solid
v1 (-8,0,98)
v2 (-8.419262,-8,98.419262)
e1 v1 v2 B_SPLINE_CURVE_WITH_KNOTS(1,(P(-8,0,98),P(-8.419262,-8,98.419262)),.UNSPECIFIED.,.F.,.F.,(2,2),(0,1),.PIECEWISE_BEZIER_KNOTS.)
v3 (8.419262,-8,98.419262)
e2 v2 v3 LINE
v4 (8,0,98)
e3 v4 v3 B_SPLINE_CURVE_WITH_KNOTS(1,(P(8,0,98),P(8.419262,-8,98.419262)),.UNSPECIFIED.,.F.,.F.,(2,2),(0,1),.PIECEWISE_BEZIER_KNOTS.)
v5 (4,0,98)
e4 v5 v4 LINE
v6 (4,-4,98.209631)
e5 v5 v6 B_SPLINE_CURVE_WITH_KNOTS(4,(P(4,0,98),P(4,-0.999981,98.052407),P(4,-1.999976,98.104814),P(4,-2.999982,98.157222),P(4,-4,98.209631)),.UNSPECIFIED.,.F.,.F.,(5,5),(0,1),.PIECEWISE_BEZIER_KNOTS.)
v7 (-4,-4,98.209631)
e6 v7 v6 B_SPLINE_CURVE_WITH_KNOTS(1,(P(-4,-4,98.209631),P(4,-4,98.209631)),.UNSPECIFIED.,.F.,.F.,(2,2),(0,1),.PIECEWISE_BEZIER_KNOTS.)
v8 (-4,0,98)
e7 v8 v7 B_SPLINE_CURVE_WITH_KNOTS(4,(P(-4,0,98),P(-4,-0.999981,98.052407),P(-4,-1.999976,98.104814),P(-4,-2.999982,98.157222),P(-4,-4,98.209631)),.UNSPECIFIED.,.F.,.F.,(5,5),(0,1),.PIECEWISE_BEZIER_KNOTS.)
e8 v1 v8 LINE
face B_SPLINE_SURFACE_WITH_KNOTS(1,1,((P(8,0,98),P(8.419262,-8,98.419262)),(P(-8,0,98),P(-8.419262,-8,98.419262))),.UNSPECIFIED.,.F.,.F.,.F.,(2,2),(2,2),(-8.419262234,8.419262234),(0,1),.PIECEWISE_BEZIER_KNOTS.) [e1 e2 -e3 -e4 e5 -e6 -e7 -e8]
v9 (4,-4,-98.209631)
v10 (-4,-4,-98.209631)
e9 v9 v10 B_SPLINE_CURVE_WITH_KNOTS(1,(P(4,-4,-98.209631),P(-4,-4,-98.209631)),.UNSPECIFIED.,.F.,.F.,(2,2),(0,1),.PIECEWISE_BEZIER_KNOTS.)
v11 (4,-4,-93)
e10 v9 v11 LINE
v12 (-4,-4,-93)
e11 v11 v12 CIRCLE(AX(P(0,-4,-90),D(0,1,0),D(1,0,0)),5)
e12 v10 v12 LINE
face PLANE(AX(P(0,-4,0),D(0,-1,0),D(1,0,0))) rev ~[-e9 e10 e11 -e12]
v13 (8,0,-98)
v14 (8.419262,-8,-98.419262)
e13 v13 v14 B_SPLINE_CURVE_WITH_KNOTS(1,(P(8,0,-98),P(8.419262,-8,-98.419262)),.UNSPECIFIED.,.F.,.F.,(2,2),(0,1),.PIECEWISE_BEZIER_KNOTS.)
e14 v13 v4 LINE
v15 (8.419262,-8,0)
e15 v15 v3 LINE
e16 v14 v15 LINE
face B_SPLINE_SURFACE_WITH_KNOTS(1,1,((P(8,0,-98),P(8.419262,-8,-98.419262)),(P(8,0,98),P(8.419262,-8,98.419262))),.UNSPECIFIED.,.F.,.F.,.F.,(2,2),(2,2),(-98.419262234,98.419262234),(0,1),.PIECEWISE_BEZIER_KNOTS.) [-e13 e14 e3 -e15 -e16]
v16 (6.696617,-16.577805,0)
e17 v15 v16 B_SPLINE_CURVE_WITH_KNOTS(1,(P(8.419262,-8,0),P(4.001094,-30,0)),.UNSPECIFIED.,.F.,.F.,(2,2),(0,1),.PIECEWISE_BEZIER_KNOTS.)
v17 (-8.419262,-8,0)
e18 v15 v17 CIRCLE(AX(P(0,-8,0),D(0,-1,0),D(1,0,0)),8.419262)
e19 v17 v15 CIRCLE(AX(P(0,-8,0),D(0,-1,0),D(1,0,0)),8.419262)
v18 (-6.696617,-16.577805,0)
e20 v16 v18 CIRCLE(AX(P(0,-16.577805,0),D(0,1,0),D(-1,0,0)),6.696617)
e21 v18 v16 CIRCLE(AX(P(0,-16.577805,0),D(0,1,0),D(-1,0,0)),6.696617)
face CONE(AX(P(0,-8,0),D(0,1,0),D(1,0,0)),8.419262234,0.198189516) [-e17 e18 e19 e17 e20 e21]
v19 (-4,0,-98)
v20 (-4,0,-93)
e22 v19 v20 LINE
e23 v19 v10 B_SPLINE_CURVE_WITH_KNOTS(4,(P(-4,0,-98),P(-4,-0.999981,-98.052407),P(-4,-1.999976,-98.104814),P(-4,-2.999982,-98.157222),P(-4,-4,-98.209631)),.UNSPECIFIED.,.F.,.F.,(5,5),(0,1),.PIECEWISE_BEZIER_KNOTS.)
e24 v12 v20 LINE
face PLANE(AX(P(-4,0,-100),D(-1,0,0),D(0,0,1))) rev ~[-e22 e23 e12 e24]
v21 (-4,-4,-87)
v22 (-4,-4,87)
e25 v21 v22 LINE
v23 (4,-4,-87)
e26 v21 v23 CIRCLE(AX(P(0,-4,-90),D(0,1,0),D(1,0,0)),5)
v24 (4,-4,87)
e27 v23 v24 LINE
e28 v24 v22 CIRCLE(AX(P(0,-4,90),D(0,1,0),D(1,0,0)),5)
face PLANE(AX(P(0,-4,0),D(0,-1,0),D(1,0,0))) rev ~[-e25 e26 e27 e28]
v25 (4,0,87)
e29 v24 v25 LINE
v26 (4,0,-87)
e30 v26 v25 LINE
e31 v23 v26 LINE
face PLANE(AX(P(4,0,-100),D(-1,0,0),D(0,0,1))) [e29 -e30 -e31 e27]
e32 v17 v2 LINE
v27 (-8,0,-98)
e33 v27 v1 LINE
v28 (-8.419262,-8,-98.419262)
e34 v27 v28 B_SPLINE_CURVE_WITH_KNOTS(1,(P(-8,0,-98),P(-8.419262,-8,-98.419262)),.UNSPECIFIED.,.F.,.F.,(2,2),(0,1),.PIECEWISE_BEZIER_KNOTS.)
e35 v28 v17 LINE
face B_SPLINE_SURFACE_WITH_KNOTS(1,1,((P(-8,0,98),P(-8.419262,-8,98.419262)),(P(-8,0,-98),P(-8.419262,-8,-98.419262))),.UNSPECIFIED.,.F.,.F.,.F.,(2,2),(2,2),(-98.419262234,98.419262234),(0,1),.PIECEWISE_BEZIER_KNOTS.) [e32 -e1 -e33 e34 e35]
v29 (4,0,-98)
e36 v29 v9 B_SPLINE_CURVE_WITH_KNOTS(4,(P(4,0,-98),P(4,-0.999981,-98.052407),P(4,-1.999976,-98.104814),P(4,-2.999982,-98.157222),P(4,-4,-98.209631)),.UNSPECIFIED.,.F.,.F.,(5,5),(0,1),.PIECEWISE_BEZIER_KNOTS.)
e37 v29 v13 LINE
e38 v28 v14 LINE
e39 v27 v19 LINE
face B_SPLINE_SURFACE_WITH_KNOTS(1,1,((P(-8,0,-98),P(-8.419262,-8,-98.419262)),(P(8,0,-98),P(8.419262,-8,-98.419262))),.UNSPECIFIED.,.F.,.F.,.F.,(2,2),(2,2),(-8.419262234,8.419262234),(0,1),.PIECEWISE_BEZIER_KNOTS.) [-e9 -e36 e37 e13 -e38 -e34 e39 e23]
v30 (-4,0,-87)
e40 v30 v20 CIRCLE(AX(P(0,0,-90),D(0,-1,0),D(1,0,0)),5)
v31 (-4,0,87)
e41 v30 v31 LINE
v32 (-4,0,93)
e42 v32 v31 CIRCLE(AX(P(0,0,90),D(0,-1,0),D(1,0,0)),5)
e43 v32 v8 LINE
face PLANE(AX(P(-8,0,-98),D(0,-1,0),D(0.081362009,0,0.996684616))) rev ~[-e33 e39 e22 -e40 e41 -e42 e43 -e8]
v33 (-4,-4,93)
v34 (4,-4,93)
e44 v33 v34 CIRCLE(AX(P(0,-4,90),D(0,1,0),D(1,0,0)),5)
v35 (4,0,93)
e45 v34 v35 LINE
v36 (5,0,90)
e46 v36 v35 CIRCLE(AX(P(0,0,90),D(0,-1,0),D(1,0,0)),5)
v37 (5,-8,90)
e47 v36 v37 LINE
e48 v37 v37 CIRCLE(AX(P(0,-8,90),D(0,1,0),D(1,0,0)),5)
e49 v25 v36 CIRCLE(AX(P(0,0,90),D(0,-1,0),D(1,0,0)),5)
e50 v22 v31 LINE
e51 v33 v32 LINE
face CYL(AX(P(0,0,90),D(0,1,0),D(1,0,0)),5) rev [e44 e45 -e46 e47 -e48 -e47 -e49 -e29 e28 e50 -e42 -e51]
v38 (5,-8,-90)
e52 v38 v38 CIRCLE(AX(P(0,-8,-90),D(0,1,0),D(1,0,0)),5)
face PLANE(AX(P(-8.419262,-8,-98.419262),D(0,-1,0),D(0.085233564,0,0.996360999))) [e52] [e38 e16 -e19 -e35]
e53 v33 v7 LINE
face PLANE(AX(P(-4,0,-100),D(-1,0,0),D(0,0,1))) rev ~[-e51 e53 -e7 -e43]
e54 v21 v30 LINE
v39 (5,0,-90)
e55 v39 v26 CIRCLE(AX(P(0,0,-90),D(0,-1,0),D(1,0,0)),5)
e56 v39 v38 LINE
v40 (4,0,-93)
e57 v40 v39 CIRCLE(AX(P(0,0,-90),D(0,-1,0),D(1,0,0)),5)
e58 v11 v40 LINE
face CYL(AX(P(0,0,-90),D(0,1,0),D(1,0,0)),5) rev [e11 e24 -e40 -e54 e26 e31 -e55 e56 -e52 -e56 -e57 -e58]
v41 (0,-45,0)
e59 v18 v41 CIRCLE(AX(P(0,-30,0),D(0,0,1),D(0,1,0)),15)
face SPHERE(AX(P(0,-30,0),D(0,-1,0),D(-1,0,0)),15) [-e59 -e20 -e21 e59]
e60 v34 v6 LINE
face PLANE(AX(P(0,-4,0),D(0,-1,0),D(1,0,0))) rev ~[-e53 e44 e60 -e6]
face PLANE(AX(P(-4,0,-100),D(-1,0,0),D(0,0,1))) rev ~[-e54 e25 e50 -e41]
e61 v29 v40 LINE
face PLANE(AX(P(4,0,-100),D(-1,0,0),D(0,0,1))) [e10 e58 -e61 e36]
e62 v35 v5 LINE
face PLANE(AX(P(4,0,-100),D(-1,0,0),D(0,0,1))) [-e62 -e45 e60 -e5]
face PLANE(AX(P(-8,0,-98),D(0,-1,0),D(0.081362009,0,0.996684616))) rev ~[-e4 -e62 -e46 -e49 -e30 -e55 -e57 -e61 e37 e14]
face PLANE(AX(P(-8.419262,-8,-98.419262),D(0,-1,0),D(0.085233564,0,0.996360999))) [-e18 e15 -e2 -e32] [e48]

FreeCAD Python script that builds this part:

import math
import FreeCAD as App
import Part
import Sketcher

V = App.Vector
Q = App.Units.Quantity


def add_polygon(sketch, points):
    """Adds a closed chain of lines whose ends are joined by coincident constraints."""
    first, n = sketch.GeometryCount, len(points)
    for a, b in zip(points, points[1:] + points[:1]):
        sketch.addGeometry(Part.LineSegment(App.Vector(*a, 0), App.Vector(*b, 0)), False)
    for i in range(n):
        sketch.addConstraint(Sketcher.Constraint("Coincident", first + i, 2, first + (i + 1) % n, 1))

doc = App.newDocument("Part")
body = doc.addObject("PartDesign::Body", "Body")

sketch1 = body.newObject("Sketcher::SketchObject", "Sketch")
sketch1.AttachmentSupport = (doc.getObject("XZ_Plane"), [""])
sketch1.MapMode = "FlatFace"
add_polygon(sketch1, [(-8, 98), (-8, -98), (8, -98), (8, 98)])
sketch1.addConstraint([
    Sketcher.Constraint("Vertical", 0),
    Sketcher.Constraint("Horizontal", 1),
    Sketcher.Constraint("Vertical", 2),
    Sketcher.Constraint("Horizontal", 3),
    Sketcher.Constraint("Symmetric", 0, 2, 2, 2, -1, 1),
    Sketcher.Constraint("DistanceX", 1, 1, 1, 2, Q("16 mm")),
    Sketcher.Constraint("DistanceY", 0, 2, 0, 1, Q("196 mm")),
])
pad1 = body.newObject("PartDesign::Pad", "Pad")
pad1.Profile = sketch1
pad1.Length = 8
pad1.TaperAngle = 3

sketch2 = body.newObject("Sketcher::SketchObject", "Sketch001")
sketch2.AttachmentSupport = (doc.getObject("XZ_Plane"), [""])
sketch2.MapMode = "FlatFace"
add_polygon(sketch2, [(-4, 100), (-4, -100), (4, -100), (4, 100)])
sketch2.addConstraint([
    Sketcher.Constraint("Vertical", 0),
    Sketcher.Constraint("Horizontal", 1),
    Sketcher.Constraint("Vertical", 2),
    Sketcher.Constraint("Horizontal", 3),
    Sketcher.Constraint("Symmetric", 0, 2, 2, 2, -1, 1),
    Sketcher.Constraint("DistanceX", 1, 1, 1, 2, Q("8 mm")),
    Sketcher.Constraint("DistanceY", 0, 2, 0, 1, Q("200 mm")),
])
pocket1 = body.newObject("PartDesign::Pocket", "Pocket")
pocket1.Profile = sketch2
pocket1.Length = 4
pocket1.Reversed = True

sketch3 = body.newObject("Sketcher::SketchObject", "Sketch002")
sketch3.AttachmentSupport = (doc.getObject("XZ_Plane"), [""])
sketch3.MapMode = "FlatFace"
sketch3.addGeometry([
    Part.Circle(V(0, 90, 0), V(0, 0, 1), 5),
    Part.Circle(V(0, -90, 0), V(0, 0, 1), 5),
], False)
sketch3.addConstraint([
    Sketcher.Constraint("Equal", 0, 1),
    Sketcher.Constraint("Symmetric", 0, 3, 1, 3, -1, 1),
    Sketcher.Constraint("PointOnObject", 0, 3, -2),
    Sketcher.Constraint("Diameter", 0, Q("10 mm")),
    Sketcher.Constraint("DistanceY", -1, 1, 0, 3, Q("90 mm")),
])
pocket2 = body.newObject("PartDesign::Pocket", "Pocket001")
pocket2.Profile = sketch3
pocket2.Length = 25.4
pocket2.Reversed = True

sketch4 = body.newObject("Sketcher::SketchObject", "Sketch003")
sketch4.AttachmentSupport = (doc.getObject("XZ_Plane"), [""])
sketch4.MapMode = "FlatFace"
sketch4.AttachmentOffset = App.Placement(V(0, 0, 8), App.Rotation())
sketch4.addGeometry(Part.Circle(V(0, 0, 0), V(0, 0, 1), 8), False)
sketch4.addConstraint([
    Sketcher.Constraint("Coincident", 0, 3, -1, 1),
    Sketcher.Constraint("Diameter", 0, Q("16.838524 mm")),
])

sketch5 = body.newObject("Sketcher::SketchObject", "Sketch004")
sketch5.AttachmentSupport = (doc.getObject("XZ_Plane"), [""])
sketch5.MapMode = "FlatFace"
sketch5.AttachmentOffset = App.Placement(V(0, 0, 30), App.Rotation())
sketch5.addGeometry(Part.Circle(V(0, 0, 0), V(0, 0, 1), 4), False)
sketch5.addConstraint([
    Sketcher.Constraint("Coincident", 0, 3, -1, 1),
    Sketcher.Constraint("Diameter", 0, Q("8.002187 mm")),
])

additiveloft = body.newObject("PartDesign::AdditiveLoft", "AdditiveLoft")
additiveloft.Profile = sketch4
additiveloft.Sections = [sketch5]

sketch6 = body.newObject("Sketcher::SketchObject", "Sketch005")
sketch6.AttachmentSupport = (doc.getObject("XY_Plane"), [""])
sketch6.MapMode = "FlatFace"
sketch6.addGeometry([
    Part.LineSegment(V(0, -45, 0), V(0, -15, 0)),
    Part.ArcOfCircle(Part.Circle(V(0, -30, 0), V(0, 0, 1), 15), math.radians(90), math.radians(270)),
], False)
sketch6.addConstraint([
    Sketcher.Constraint("Coincident", 0, 1, 1, 2),
    Sketcher.Constraint("Coincident", 1, 1, 0, 2),
    Sketcher.Constraint("Vertical", 0),
    Sketcher.Constraint("PointOnObject", 1, 3, -2),
    Sketcher.Constraint("PointOnObject", 0, 1, -2),
    Sketcher.Constraint("Radius", 1, Q("15 mm")),
    Sketcher.Constraint("DistanceY", 1, 3, -1, 1, Q("30 mm")),
])
revolution = body.newObject("PartDesign::Revolution", "Revolution")
revolution.Profile = sketch6
revolution.ReferenceAxis = (sketch6, ["V_Axis"])
revolution.Angle = 360

sketch7 = body.newObject("Sketcher::SketchObject", "Sketch006")
sketch7.AttachmentSupport = (doc.getObject("YZ_Plane"), [""])
sketch7.MapMode = "FlatFace"
sketch7.AttachmentOffset = App.Placement(V(0, 0, 25), App.Rotation())
sketch7.addGeometry(Part.Circle(V(-30, 0, 0), V(0, 0, 1), 18), False)
sketch7.addConstraint([
    Sketcher.Constraint("PointOnObject", 0, 3, -1),
    Sketcher.Constraint("Diameter", 0, Q("35.606586 mm")),
    Sketcher.Constraint("DistanceX", 0, 3, -1, 1, Q("29.996494 mm")),
])
pocket3 = body.newObject("PartDesign::Pocket", "Pocket002")
pocket3.Profile = sketch7
pocket3.Length = 25
pocket3.Reversed = True

sketch8 = body.newObject("Sketcher::SketchObject", "Sketch007")
sketch8.AttachmentSupport = (doc.getObject("YZ_Plane"), [""])
sketch8.MapMode = "FlatFace"
sketch8.AttachmentOffset = App.Placement(V(0, 0, -25), App.Rotation())
sketch8.addGeometry(Part.Circle(V(-30, 0, 0), V(0, 0, 1), 18), False)
sketch8.addConstraint([
    Sketcher.Constraint("PointOnObject", 0, 3, -1),
    Sketcher.Constraint("Diameter", 0, Q("35.824076 mm")),
    Sketcher.Constraint("DistanceX", 0, 3, -1, 1, Q("29.946279 mm")),
])
pocket4 = body.newObject("PartDesign::Pocket", "Pocket003")
pocket4.Profile = sketch8
pocket4.Length = 25

doc.recompute()
